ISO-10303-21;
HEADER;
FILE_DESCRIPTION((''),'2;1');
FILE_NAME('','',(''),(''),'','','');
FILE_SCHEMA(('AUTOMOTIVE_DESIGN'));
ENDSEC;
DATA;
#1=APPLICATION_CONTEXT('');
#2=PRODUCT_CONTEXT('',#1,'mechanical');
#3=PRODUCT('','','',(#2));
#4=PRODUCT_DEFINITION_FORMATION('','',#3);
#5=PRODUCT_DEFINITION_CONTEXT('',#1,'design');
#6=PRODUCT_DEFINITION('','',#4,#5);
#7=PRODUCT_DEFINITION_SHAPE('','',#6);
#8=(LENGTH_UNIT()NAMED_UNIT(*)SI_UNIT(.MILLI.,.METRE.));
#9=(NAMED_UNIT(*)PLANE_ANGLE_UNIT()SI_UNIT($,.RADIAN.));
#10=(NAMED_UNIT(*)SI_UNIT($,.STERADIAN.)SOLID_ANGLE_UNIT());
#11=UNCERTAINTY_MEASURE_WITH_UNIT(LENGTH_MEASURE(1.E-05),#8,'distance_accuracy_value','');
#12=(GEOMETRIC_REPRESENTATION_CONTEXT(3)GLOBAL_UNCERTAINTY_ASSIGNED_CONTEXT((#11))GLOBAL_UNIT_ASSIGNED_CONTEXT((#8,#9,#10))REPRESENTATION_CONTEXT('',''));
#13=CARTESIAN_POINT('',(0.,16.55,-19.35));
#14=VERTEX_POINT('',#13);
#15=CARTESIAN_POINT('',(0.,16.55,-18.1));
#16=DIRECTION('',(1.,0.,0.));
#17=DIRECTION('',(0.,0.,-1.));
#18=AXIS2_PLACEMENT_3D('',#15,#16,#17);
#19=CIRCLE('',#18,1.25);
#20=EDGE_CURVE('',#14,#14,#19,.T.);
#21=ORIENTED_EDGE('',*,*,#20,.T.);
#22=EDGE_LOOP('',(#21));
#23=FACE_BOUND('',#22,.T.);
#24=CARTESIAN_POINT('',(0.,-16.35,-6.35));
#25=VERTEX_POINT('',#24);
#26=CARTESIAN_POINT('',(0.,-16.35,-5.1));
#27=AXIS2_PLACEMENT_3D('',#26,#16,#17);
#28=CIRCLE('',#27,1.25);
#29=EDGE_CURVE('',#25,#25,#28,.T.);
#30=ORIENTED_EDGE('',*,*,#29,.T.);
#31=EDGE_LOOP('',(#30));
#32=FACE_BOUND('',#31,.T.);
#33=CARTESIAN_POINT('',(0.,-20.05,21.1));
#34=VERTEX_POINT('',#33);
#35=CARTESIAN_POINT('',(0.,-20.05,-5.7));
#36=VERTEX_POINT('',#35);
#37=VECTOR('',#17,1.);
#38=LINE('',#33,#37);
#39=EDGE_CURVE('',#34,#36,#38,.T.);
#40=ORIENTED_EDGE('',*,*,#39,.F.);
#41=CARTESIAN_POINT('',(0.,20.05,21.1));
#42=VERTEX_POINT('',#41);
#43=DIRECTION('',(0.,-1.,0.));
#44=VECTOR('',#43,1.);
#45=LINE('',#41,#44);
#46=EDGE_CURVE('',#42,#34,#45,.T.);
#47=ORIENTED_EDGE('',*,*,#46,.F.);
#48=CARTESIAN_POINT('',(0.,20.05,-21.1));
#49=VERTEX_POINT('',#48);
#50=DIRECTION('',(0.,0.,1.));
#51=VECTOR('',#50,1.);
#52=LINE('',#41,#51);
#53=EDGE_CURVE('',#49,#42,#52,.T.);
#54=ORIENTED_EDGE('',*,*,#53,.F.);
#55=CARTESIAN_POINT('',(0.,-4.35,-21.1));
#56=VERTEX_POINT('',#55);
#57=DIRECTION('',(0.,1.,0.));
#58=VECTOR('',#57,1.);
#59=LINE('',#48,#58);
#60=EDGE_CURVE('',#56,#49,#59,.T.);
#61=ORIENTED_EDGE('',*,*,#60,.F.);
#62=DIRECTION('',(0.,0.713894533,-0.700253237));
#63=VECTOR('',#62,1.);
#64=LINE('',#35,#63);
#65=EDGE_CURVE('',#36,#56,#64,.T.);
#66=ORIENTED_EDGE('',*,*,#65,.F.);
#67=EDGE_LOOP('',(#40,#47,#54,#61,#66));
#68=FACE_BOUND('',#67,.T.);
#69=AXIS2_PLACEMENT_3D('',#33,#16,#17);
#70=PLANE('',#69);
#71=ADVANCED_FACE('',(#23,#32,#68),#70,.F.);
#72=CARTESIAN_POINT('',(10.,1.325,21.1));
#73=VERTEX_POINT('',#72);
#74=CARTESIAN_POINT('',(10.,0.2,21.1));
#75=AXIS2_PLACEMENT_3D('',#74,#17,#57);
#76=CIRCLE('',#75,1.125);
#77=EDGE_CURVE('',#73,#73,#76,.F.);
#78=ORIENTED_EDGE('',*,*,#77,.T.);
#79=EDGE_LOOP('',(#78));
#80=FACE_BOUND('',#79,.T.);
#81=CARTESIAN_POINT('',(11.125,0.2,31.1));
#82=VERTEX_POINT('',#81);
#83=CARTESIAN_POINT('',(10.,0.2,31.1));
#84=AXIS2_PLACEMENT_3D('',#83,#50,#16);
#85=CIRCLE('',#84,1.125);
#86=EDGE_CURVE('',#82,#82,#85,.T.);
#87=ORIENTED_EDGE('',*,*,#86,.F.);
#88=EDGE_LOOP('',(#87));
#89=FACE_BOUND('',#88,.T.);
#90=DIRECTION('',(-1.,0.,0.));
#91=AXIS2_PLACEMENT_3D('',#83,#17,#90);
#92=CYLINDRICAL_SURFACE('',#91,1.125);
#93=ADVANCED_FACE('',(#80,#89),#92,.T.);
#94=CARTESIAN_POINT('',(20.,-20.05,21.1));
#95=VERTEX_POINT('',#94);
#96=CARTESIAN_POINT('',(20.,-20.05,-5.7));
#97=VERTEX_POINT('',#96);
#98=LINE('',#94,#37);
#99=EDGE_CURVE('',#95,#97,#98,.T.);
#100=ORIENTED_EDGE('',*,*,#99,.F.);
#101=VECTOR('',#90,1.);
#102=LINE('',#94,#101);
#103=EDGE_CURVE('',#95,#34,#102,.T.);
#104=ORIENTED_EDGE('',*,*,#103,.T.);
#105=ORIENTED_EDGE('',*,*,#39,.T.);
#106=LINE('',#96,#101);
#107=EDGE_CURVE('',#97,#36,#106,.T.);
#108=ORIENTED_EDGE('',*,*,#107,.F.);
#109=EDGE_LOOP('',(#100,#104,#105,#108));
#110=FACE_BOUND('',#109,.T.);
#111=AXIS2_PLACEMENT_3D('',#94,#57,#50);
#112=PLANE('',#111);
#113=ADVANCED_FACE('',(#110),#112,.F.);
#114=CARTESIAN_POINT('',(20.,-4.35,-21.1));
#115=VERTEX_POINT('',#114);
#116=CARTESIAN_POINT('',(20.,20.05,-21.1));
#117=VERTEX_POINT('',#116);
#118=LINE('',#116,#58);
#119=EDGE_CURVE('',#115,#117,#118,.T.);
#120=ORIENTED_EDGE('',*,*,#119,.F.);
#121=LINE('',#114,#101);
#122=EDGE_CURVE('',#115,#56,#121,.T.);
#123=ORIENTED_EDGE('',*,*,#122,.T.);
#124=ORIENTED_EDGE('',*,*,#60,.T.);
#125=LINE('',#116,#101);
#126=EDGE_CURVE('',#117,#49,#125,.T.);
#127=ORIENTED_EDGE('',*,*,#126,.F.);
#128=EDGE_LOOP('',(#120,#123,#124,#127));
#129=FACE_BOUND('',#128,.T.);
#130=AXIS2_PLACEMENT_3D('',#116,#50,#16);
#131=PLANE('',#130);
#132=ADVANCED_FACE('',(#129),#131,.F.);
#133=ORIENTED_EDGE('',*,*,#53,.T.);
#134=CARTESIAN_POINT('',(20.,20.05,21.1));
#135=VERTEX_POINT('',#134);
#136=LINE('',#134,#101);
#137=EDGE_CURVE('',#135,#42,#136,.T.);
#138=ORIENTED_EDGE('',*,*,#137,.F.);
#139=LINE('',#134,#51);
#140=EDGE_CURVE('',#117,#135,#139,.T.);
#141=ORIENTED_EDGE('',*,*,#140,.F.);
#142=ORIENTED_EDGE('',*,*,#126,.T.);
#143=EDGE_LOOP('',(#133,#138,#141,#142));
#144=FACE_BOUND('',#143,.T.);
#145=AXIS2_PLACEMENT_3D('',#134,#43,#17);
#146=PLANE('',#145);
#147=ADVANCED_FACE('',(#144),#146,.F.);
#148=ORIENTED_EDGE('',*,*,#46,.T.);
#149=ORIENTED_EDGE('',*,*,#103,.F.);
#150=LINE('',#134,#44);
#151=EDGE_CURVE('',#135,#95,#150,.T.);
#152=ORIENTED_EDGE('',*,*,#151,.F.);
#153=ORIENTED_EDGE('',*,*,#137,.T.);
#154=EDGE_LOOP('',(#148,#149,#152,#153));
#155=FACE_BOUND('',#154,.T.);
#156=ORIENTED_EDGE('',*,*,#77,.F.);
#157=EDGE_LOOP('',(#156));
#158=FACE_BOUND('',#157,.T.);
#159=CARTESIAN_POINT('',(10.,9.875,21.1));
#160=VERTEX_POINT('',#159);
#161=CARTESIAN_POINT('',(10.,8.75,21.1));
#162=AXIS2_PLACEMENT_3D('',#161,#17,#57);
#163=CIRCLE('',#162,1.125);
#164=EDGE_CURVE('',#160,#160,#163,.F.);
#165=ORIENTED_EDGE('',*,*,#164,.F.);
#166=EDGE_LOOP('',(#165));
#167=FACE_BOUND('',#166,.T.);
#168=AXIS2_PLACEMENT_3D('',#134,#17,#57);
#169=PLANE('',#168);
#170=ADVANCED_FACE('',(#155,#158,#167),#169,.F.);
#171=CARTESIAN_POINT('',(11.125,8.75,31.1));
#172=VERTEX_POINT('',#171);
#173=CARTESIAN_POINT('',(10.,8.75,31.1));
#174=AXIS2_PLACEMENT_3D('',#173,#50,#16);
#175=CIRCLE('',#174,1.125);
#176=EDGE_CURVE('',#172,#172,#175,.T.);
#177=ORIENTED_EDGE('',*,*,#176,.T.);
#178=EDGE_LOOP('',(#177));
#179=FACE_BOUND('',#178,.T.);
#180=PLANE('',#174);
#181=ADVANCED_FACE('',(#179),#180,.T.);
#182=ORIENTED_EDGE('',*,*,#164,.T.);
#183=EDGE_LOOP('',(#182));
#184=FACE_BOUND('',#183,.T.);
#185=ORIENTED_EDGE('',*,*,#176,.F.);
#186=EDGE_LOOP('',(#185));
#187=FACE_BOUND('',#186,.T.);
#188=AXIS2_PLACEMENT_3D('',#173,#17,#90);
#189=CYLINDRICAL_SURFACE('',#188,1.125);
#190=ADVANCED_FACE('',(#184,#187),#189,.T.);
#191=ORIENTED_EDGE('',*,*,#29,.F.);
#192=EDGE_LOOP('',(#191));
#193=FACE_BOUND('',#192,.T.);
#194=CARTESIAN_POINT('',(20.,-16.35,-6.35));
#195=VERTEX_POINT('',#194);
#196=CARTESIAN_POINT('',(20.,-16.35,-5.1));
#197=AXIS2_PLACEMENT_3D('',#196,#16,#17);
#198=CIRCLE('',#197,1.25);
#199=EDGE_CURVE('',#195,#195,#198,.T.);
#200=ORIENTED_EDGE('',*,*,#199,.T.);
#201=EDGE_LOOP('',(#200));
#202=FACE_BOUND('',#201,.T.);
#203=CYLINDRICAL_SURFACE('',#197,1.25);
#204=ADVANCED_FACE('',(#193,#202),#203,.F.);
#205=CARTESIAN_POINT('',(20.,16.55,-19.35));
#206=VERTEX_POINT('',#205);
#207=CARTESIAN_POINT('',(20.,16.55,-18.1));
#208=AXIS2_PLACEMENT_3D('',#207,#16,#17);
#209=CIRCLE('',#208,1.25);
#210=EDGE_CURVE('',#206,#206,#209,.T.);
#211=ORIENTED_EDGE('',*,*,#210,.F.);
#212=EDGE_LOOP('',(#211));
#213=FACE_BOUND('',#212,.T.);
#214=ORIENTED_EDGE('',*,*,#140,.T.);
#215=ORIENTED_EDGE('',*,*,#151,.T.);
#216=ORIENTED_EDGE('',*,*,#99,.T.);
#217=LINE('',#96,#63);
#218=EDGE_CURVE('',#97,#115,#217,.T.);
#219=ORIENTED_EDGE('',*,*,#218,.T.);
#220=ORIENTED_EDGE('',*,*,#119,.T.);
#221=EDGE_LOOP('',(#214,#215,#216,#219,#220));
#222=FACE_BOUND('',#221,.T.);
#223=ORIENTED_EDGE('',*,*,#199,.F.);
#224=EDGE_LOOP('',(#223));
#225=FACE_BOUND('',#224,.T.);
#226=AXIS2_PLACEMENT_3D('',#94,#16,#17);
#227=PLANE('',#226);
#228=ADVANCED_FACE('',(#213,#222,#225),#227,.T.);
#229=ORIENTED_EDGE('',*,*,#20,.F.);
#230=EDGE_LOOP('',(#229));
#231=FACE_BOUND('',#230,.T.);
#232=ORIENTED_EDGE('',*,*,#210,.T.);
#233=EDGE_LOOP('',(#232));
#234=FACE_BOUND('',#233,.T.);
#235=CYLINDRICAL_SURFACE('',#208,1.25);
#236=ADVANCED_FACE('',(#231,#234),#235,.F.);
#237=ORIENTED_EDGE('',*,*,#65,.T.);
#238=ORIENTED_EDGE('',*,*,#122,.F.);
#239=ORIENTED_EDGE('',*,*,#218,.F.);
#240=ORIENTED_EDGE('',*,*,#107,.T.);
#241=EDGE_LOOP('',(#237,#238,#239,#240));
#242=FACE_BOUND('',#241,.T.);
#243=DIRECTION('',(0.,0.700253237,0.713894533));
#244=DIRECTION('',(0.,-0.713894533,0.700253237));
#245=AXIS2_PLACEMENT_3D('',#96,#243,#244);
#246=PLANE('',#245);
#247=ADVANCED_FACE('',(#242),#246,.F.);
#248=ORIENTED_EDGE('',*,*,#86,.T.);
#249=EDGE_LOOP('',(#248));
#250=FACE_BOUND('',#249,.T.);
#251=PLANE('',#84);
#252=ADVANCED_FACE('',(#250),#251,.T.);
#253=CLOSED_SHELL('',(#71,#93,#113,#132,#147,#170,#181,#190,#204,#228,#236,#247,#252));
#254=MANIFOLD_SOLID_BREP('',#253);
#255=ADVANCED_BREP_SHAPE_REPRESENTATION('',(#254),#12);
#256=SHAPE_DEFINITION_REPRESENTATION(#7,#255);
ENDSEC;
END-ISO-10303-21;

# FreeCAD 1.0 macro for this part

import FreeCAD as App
import Part
import Sketcher

V = App.Vector

doc = App.newDocument("Part")
params = doc.addObject("Spreadsheet::Sheet", "Params")
for row, (alias, value) in enumerate([
    ("sketch1_width", "24.4 mm"),
    ("sketch1_width2", "40.1 mm"),
    ("sketch1_height", "42.2 mm"),
    ("sketch1_height2", "26.8 mm"),
    ("pad1_length", "20 mm"),
    ("sketch2_diameter", "2.5 mm"),
    ("hole_diameter", "2.5 mm"),
    ("sketch3_diameter", "2.5 mm"),
    ("hole2_diameter", "2.5 mm"),
    ("sketch4_diameter", "2.25 mm"),
    ("pad2_length", "10 mm"),
], start=1):
    params.set(f"A{row}", alias)
    params.set(f"B{row}", "=" + value)
    params.setAlias(f"B{row}", alias)

body = doc.addObject("PartDesign::Body", "Body")

sketch1 = body.newObject("Sketcher::SketchObject", "Sketch")
sketch1.AttachmentSupport = (doc.getObject("YZ_Plane"), [""])
sketch1.MapMode = "FlatFace"
sketch1.addGeometry([
    Part.LineSegment(V(-20, -6, 0), V(-4, -21, 0)),
    Part.LineSegment(V(-4, -21, 0), V(20, -21, 0)),
    Part.LineSegment(V(20, -21, 0), V(20, 21, 0)),
    Part.LineSegment(V(20, 21, 0), V(-20, 21, 0)),
    Part.LineSegment(V(-20, 21, 0), V(-20, -6, 0)),
], False)
sketch1.addConstraint([
    Sketcher.Constraint("Coincident", 0, 2, 1, 1),
    Sketcher.Constraint("Coincident", 1, 2, 2, 1),
    Sketcher.Constraint("Coincident", 2, 2, 3, 1),
    Sketcher.Constraint("Coincident", 3, 2, 4, 1),
    Sketcher.Constraint("Coincident", 4, 2, 0, 1),
    Sketcher.Constraint("Horizontal", 1),
    Sketcher.Constraint("Vertical", 2),
    Sketcher.Constraint("Horizontal", 3),
    Sketcher.Constraint("Vertical", 4),
    Sketcher.Constraint("Symmetric", 1, 2, 3, 2, -1, 1),
    Sketcher.Constraint("DistanceX", 1, 1, 1, 2, 24.4),
    Sketcher.Constraint("DistanceX", 3, 2, 3, 1, 40.1),
    Sketcher.Constraint("DistanceY", 2, 1, 2, 2, 42.2),
    Sketcher.Constraint("DistanceY", 4, 2, 4, 1, 26.8),
])
sketch1.setExpression("Constraints[10]", "Params.sketch1_width")
sketch1.setExpression("Constraints[11]", "Params.sketch1_width2")
sketch1.setExpression("Constraints[12]", "Params.sketch1_height")
sketch1.setExpression("Constraints[13]", "Params.sketch1_height2")
pad1 = body.newObject("PartDesign::Pad", "Pad")
pad1.Profile = sketch1
pad1.setExpression("Length", "Params.pad1_length")

sketch2 = body.newObject("Sketcher::SketchObject", "Sketch001")
sketch2.AttachmentSupport = (doc.getObject("YZ_Plane"), [""])
sketch2.MapMode = "FlatFace"
sketch2.AttachmentOffset = App.Placement(V(0, 0, 20), App.Rotation())
sketch2.addGeometry(Part.Circle(V(16.6, -18.1, 0), V(0, 0, 1), 1.2), False)
sketch2.addConstraint([
    Sketcher.Constraint("Diameter", 0, 2.5),
    Sketcher.Constraint("DistanceY", 0, 3, -1, 1, 18.1),
    Sketcher.Constraint("DistanceX", -1, 1, 0, 3, 16.55),
])
sketch2.setExpression("Constraints[0]", "Params.sketch2_diameter")
doc.recompute()
hole = body.newObject("PartDesign::Hole", "Hole")
hole.Profile = sketch2
hole.ThreadType = "None"
hole.setExpression("Diameter", "Params.hole_diameter")
hole.DepthType = "ThroughAll"

sketch3 = body.newObject("Sketcher::SketchObject", "Sketch002")
sketch3.AttachmentSupport = (doc.getObject("YZ_Plane"), [""])
sketch3.MapMode = "FlatFace"
sketch3.AttachmentOffset = App.Placement(V(0, 0, 20), App.Rotation())
sketch3.addGeometry(Part.Circle(V(-16.4, -5.1, 0), V(0, 0, 1), 1.2), False)
sketch3.addConstraint([
    Sketcher.Constraint("Diameter", 0, 2.5),
    Sketcher.Constraint("DistanceY", 0, 3, -1, 1, 5.1),
    Sketcher.Constraint("DistanceX", 0, 3, -1, 1, 16.35),
])
sketch3.setExpression("Constraints[0]", "Params.sketch3_diameter")
doc.recompute()
hole2 = body.newObject("PartDesign::Hole", "Hole001")
hole2.Profile = sketch3
hole2.ThreadType = "None"
hole2.setExpression("Diameter", "Params.hole2_diameter")
hole2.DepthType = "ThroughAll"

sketch4 = body.newObject("Sketcher::SketchObject", "Sketch003")
sketch4.AttachmentSupport = (doc.getObject("XY_Plane"), [""])
sketch4.MapMode = "FlatFace"
sketch4.AttachmentOffset = App.Placement(V(0, 0, 21.1), App.Rotation())
sketch4.addGeometry([
    Part.Circle(V(10, 8.8, 0), V(0, 0, 1), 1.1),
    Part.Circle(V(10, 0.2, 0), V(0, 0, 1), 1.1),
], False)
sketch4.addConstraint([
    Sketcher.Constraint("Equal", 0, 1),
    Sketcher.Constraint("Vertical", 0, 3, 1, 3),
    Sketcher.Constraint("Diameter", 0, 2.25),
    Sketcher.Constraint("DistanceX", -1, 1, 0, 3, 10.0),
    Sketcher.Constraint("DistanceY", -1, 1, 1, 3, 0.2),
    Sketcher.Constraint("DistanceY", -1, 1, 0, 3, 8.75),
])
sketch4.setExpression("Constraints[2]", "Params.sketch4_diameter")
pad2 = body.newObject("PartDesign::Pad", "Pad001")
pad2.Profile = sketch4
pad2.setExpression("Length", "Params.pad2_length")

doc.recompute()
